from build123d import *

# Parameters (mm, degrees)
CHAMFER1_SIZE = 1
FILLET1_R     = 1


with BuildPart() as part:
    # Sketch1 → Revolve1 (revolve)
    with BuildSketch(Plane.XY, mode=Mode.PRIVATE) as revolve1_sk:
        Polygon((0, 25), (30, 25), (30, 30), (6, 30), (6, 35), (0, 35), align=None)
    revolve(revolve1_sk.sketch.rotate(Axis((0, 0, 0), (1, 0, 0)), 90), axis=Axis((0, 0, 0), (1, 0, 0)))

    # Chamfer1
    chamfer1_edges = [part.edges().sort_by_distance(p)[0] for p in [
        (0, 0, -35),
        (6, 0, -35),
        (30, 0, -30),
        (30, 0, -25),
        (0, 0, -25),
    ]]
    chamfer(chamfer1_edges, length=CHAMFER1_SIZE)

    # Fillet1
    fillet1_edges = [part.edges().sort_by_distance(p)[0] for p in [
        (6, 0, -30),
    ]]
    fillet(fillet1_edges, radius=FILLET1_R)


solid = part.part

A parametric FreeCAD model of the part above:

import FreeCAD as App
import Part
import Sketcher


def edges_at(feature, points):
    """Names of the edges that pass closest to the given points."""
    edges = feature.Shape.Edges
    near = lambda p: min(range(len(edges)), key=lambda i: edges[i].distToShape(Part.Vertex(*p))[0])
    return sorted({f"Edge{near(p) + 1}" for p in points})


def add_polygon(sketch, points):
    """Adds a closed chain of lines whose ends are joined by coincident constraints."""
    first, n = sketch.GeometryCount, len(points)
    for a, b in zip(points, points[1:] + points[:1]):
        sketch.addGeometry(Part.LineSegment(App.Vector(*a, 0), App.Vector(*b, 0)), False)
    for i in range(n):
        sketch.addConstraint(Sketcher.Constraint("Coincident", first + i, 2, first + (i + 1) % n, 1))

doc = App.newDocument("Part")
body = doc.addObject("PartDesign::Body", "Body")

sketch1 = body.newObject("Sketcher::SketchObject", "Sketch")
sketch1.AttachmentSupport = (doc.getObject("XY_Plane"), [""])
sketch1.MapMode = "FlatFace"
add_polygon(sketch1, [(0, 25), (30, 25), (30, 30), (6, 30), (6, 35), (0, 35)])
sketch1.addConstraint([
    Sketcher.Constraint("Horizontal", 0),
    Sketcher.Constraint("Vertical", 1),
    Sketcher.Constraint("Horizontal", 2),
    Sketcher.Constraint("Vertical", 3),
    Sketcher.Constraint("Horizontal", 4),
    Sketcher.Constraint("Vertical", 5),
    Sketcher.Constraint("PointOnObject", 4, 2, -2),
    Sketcher.Constraint("Equal", 1, 3),
    Sketcher.Constraint("DistanceX", 0, 1, 0, 2, 30.0),
    Sketcher.Constraint("DistanceX", 2, 2, 2, 1, 24.0),
    Sketcher.Constraint("DistanceY", 1, 1, 1, 2, 5.0),
    Sketcher.Constraint("DistanceY", -1, 1, 0, 2, 25.0),
])
revolution = body.newObject("PartDesign::Revolution", "Revolution")
revolution.Profile = sketch1
revolution.ReferenceAxis = (sketch1, ["H_Axis"])
revolution.Angle = 360
doc.recompute()

chamfer = body.newObject("PartDesign::Chamfer", "Chamfer")
chamfer.Base = (revolution, edges_at(revolution, [
    (0, 0, -35),
    (6, 0, -35),
    (30, 0, -30),
    (30, 0, -25),
    (0, 0, -25),
]))
chamfer.Size = 1
doc.recompute()

fillet = body.newObject("PartDesign::Fillet", "Fillet")
fillet.Base = (chamfer, edges_at(chamfer, [(6, 0, -30)]))
fillet.Radius = 1

doc.recompute()
